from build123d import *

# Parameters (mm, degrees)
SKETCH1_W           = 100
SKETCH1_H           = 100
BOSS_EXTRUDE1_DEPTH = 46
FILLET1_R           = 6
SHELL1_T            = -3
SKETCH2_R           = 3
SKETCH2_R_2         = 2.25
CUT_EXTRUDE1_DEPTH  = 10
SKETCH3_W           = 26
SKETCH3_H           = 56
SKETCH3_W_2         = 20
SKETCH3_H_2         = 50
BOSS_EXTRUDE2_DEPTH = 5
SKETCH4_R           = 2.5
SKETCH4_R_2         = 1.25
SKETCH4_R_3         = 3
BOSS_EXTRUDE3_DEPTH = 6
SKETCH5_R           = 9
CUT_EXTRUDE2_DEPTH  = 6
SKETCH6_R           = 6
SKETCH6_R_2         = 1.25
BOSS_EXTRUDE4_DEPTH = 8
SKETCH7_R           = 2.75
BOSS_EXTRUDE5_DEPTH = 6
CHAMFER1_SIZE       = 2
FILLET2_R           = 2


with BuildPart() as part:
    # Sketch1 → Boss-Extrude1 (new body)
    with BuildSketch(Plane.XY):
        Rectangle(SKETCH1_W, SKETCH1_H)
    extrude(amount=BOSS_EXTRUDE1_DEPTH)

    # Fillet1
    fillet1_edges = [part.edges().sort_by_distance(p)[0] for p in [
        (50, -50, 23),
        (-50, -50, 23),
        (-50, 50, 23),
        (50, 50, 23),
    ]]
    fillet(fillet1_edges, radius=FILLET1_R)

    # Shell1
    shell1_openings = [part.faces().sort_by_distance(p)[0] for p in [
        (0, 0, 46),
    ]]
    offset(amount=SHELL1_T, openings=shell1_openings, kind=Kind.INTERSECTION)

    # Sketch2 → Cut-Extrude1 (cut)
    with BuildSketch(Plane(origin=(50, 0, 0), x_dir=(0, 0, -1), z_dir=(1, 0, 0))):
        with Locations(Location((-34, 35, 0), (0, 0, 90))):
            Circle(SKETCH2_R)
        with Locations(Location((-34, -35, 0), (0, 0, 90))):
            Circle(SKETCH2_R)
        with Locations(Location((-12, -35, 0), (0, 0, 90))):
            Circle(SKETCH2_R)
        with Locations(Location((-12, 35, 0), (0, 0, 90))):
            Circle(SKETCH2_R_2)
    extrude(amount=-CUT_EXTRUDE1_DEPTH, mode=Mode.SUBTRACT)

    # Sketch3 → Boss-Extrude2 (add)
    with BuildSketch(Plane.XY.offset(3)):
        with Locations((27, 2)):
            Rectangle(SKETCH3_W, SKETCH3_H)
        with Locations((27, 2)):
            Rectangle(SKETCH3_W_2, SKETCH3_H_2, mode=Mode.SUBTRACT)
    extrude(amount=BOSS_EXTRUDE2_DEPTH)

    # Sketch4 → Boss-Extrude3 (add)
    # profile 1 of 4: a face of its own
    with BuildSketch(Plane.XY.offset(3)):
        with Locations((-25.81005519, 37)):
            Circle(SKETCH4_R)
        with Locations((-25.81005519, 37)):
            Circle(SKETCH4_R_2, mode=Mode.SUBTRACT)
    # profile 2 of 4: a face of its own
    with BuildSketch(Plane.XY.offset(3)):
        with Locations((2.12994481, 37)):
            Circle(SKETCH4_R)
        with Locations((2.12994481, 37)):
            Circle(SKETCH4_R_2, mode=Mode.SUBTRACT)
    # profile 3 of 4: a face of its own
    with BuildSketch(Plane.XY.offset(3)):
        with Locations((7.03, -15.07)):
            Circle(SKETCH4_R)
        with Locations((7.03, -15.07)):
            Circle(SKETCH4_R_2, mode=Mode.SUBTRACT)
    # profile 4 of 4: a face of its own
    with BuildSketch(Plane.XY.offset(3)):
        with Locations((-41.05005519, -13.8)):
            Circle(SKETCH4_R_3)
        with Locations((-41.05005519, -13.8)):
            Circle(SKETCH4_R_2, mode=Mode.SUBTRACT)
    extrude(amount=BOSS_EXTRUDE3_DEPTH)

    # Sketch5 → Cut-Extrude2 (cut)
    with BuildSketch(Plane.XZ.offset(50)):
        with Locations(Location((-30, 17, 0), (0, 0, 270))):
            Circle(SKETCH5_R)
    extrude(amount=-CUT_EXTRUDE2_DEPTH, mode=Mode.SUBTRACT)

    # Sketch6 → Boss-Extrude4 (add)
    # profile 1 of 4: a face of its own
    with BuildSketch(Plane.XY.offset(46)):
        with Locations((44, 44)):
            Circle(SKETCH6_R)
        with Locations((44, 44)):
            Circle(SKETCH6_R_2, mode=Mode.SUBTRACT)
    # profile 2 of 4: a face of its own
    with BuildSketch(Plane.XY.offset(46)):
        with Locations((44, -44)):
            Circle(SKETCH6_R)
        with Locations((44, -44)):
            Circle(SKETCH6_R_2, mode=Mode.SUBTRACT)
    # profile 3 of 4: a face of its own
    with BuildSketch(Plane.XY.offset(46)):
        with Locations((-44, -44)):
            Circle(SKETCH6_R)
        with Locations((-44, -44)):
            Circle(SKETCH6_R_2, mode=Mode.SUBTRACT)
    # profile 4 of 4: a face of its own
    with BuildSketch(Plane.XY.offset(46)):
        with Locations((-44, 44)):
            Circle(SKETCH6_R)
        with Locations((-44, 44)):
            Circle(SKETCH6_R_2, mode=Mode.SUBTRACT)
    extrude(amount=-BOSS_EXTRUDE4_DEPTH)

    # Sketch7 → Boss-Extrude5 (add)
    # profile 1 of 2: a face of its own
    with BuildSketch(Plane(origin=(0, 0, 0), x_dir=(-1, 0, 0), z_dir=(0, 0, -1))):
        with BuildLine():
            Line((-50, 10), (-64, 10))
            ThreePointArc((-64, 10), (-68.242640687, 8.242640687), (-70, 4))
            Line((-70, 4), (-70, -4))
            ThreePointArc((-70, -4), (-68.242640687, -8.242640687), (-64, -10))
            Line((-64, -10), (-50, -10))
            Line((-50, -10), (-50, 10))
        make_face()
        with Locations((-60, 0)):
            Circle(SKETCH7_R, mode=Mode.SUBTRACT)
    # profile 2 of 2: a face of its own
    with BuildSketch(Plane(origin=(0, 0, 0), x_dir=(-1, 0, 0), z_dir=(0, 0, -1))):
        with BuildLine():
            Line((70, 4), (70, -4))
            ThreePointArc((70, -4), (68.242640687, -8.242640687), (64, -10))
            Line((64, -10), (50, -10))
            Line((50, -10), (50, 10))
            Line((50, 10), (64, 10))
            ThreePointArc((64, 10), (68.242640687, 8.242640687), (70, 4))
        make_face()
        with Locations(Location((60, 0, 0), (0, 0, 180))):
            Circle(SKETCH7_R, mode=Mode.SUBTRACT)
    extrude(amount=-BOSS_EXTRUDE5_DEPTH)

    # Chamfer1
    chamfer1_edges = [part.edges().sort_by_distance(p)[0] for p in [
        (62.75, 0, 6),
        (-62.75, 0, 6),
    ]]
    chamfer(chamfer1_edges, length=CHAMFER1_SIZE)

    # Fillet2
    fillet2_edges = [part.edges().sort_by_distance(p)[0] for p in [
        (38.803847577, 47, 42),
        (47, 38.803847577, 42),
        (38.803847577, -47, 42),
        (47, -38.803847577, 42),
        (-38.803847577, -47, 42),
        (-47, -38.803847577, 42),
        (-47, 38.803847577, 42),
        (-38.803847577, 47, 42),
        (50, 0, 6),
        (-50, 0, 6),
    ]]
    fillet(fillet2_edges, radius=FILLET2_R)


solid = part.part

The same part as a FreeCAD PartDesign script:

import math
import FreeCAD as App
import Part
import Sketcher

V = App.Vector
Q = App.Units.Quantity


def edges_at(feature, points):
    """Names of the edges that pass closest to the given points."""
    edges = feature.Shape.Edges
    near = lambda p: min(range(len(edges)), key=lambda i: edges[i].distToShape(Part.Vertex(*p))[0])
    return sorted({f"Edge{near(p) + 1}" for p in points})


def faces_at(feature, points):
    """Names of the faces that lie closest to the given points."""
    faces = feature.Shape.Faces
    near = lambda p: min(range(len(faces)), key=lambda i: faces[i].distToShape(Part.Vertex(*p))[0])
    return sorted({f"Face{near(p) + 1}" for p in points})


def add_polygon(sketch, points):
    """Adds a closed chain of lines whose ends are joined by coincident constraints."""
    first, n = sketch.GeometryCount, len(points)
    for a, b in zip(points, points[1:] + points[:1]):
        sketch.addGeometry(Part.LineSegment(App.Vector(*a, 0), App.Vector(*b, 0)), False)
    for i in range(n):
        sketch.addConstraint(Sketcher.Constraint("Coincident", first + i, 2, first + (i + 1) % n, 1))

doc = App.newDocument("Part")
body = doc.addObject("PartDesign::Body", "Body")

# Sketch on XY plane
sketch1 = body.newObject("Sketcher::SketchObject", "Sketch")
sketch1.AttachmentSupport = (doc.getObject("XY_Plane"), [""])
sketch1.MapMode = "FlatFace"
add_polygon(sketch1, [(-50, 50), (-50, -50), (50, -50), (50, 50)])  # lines 0-3
sketch1.addConstraint([
    Sketcher.Constraint("Vertical", 0),
    Sketcher.Constraint("Horizontal", 1),
    Sketcher.Constraint("Vertical", 2),
    Sketcher.Constraint("Horizontal", 3),
    Sketcher.Constraint("Symmetric", 0, 2, 2, 2, -1, 1),
    Sketcher.Constraint("Equal", 3, 0),
    Sketcher.Constraint("DistanceX", 1, 1, 1, 2, Q("100 mm")),
])
pad1 = body.newObject("PartDesign::Pad", "Pad")
pad1.Profile = sketch1
pad1.Length = 46
doc.recompute()

fillet = body.newObject("PartDesign::Fillet", "Fillet")
fillet.Base = (pad1, edges_at(pad1, [
    (50, -50, 23),
    (-50, -50, 23),
    (-50, 50, 23),
    (50, 50, 23),
]))
fillet.Radius = 6
doc.recompute()

thickness = body.newObject("PartDesign::Thickness", "Thickness")
thickness.Base = (fillet, faces_at(fillet, [(0, 0, 46)]))
thickness.Value = 3
thickness.Reversed = True
thickness.Join = "Intersection"

# Sketch on YZ plane
sketch2 = body.newObject("Sketcher::SketchObject", "Sketch001")
sketch2.AttachmentSupport = (doc.getObject("YZ_Plane"), [""])
sketch2.MapMode = "FlatFace"
sketch2.AttachmentOffset = App.Placement(V(0, 0, 50), App.Rotation())
sketch2.addGeometry([
    Part.Circle(V(35, 34, 0), V(0, 0, 1), 3),
    Part.Circle(V(-35, 34, 0), V(0, 0, 1), 3),
    Part.Circle(V(-35, 12, 0), V(0, 0, 1), 3),
    Part.Circle(V(35, 12, 0), V(0, 0, 1), 2.25),
], False)
sketch2.addConstraint([
    Sketcher.Constraint("Equal", 0, 1),
    Sketcher.Constraint("Equal", 1, 2),
    Sketcher.Constraint("Symmetric", 0, 3, 1, 3, -2),
    Sketcher.Constraint("Symmetric", 2, 3, 3, 3, -2),
    Sketcher.Constraint("Vertical", 1, 3, 2, 3),
    Sketcher.Constraint("Diameter", 0, Q("6 mm")),
    Sketcher.Constraint("Diameter", 3, Q("4.5 mm")),
    Sketcher.Constraint("DistanceX", -1, 1, 0, 3, Q("35 mm")),
    Sketcher.Constraint("DistanceY", -1, 1, 0, 3, Q("34 mm")),
    Sketcher.Constraint("DistanceY", -1, 1, 2, 3, Q("12 mm")),
])
pocket1 = body.newObject("PartDesign::Pocket", "Pocket")
pocket1.Profile = sketch2
pocket1.Length = 10

# Sketch on XY plane
sketch3 = body.newObject("Sketcher::SketchObject", "Sketch002")
sketch3.AttachmentSupport = (doc.getObject("XY_Plane"), [""])
sketch3.MapMode = "FlatFace"
sketch3.AttachmentOffset = App.Placement(V(0, 0, 3), App.Rotation())
add_polygon(sketch3, [(14, 30), (14, -26), (40, -26), (40, 30)])  # lines 0-3
add_polygon(sketch3, [(37, -23), (17, -23), (17, 27), (37, 27)])  # lines 4-7
sketch3.addConstraint([
    Sketcher.Constraint("Vertical", 0),
    Sketcher.Constraint("Horizontal", 1),
    Sketcher.Constraint("Vertical", 2),
    Sketcher.Constraint("Horizontal", 3),
    Sketcher.Constraint("Horizontal", 4),
    Sketcher.Constraint("Vertical", 5),
    Sketcher.Constraint("Horizontal", 6),
    Sketcher.Constraint("Vertical", 7),
    Sketcher.Constraint("DistanceX", 1, 1, 1, 2, Q("26 mm")),
    Sketcher.Constraint("DistanceX", 4, 2, 4, 1, Q("20 mm")),
    Sketcher.Constraint("DistanceY", 0, 2, 0, 1, Q("56 mm")),
    Sketcher.Constraint("DistanceY", 5, 1, 5, 2, Q("50 mm")),
    Sketcher.Constraint("DistanceX", -1, 1, 0, 2, Q("14 mm")),
    Sketcher.Constraint("DistanceY", 0, 2, -1, 1, Q("26 mm")),
    Sketcher.Constraint("DistanceX", -1, 1, 4, 2, Q("17 mm")),
    Sketcher.Constraint("DistanceY", 4, 2, -1, 1, Q("23 mm")),
])
pad2 = body.newObject("PartDesign::Pad", "Pad001")
pad2.Profile = sketch3
pad2.Length = 5

# Sketch on XY plane
sketch4 = body.newObject("Sketcher::SketchObject", "Sketch003")
sketch4.AttachmentSupport = (doc.getObject("XY_Plane"), [""])
sketch4.MapMode = "FlatFace"
sketch4.AttachmentOffset = App.Placement(V(0, 0, 3), App.Rotation())
sketch4.addGeometry([
    Part.Circle(V(-25.810055, 37, 0), V(0, 0, 1), 2.5),  # 0
    Part.Circle(V(-25.810055, 37, 0), V(0, 0, 1), 1.25),  # 1
    Part.Circle(V(2.129945, 37, 0), V(0, 0, 1), 2.5),  # 2
    Part.Circle(V(2.129945, 37, 0), V(0, 0, 1), 1.25),  # 3
    Part.Circle(V(7.03, -15.07, 0), V(0, 0, 1), 2.5),  # 4
    Part.Circle(V(7.03, -15.07, 0), V(0, 0, 1), 1.25),  # 5
    Part.Circle(V(-41.050055, -13.8, 0), V(0, 0, 1), 3),  # 6
    Part.Circle(V(-41.050055, -13.8, 0), V(0, 0, 1), 1.25),  # 7
], False)
sketch4.addConstraint([
    Sketcher.Constraint("Coincident", 1, 3, 0, 3),
    Sketcher.Constraint("Coincident", 3, 3, 2, 3),
    Sketcher.Constraint("Coincident", 5, 3, 4, 3),
    Sketcher.Constraint("Coincident", 7, 3, 6, 3),
    Sketcher.Constraint("Equal", 0, 2),
    Sketcher.Constraint("Equal", 1, 3),
    Sketcher.Constraint("Equal", 2, 4),
    Sketcher.Constraint("Equal", 3, 5),
    Sketcher.Constraint("Equal", 5, 7),
    Sketcher.Constraint("Horizontal", 1, 3, 2, 3),
    Sketcher.Constraint("Diameter", 0, Q("5 mm")),
    Sketcher.Constraint("Diameter", 6, Q("6 mm")),
    Sketcher.Constraint("Diameter", 1, Q("2.5 mm")),
    Sketcher.Constraint("DistanceY", -1, 1, 0, 3, Q("37 mm")),
    Sketcher.Constraint("DistanceY", 6, 3, -1, 1, Q("13.8 mm")),
    Sketcher.Constraint("DistanceX", -1, 1, 4, 3, Q("7.03 mm")),
    Sketcher.Constraint("DistanceY", 4, 3, -1, 1, Q("15.07 mm")),
    Sketcher.Constraint("DistanceX", 0, 3, 2, 3, Q("27.94 mm")),
    Sketcher.Constraint("DistanceX", 6, 3, 0, 3, Q("15.24 mm")),
    Sketcher.Constraint("DistanceX", 0, 3, -1, 1, Q("25.810055 mm")),
])
pad3 = body.newObject("PartDesign::Pad", "Pad002")
pad3.Profile = sketch4
pad3.Length = 6

# Sketch on XZ plane
sketch5 = body.newObject("Sketcher::SketchObject", "Sketch004")
sketch5.AttachmentSupport = (doc.getObject("XZ_Plane"), [""])
sketch5.MapMode = "FlatFace"
sketch5.AttachmentOffset = App.Placement(V(0, 0, 50), App.Rotation())
sketch5.addGeometry(Part.Circle(V(-30, 17, 0), V(0, 0, 1), 9), False)
sketch5.addConstraint([
    Sketcher.Constraint("Diameter", 0, Q("18 mm")),
    Sketcher.Constraint("DistanceX", 0, 3, -1, 1, Q("30 mm")),
    Sketcher.Constraint("DistanceY", -1, 1, 0, 3, Q("17 mm")),
])
pocket2 = body.newObject("PartDesign::Pocket", "Pocket001")
pocket2.Profile = sketch5
pocket2.Length = 6

# Sketch on XY plane
sketch6 = body.newObject("Sketcher::SketchObject", "Sketch005")
sketch6.AttachmentSupport = (doc.getObject("XY_Plane"), [""])
sketch6.MapMode = "FlatFace"
sketch6.AttachmentOffset = App.Placement(V(0, 0, 46), App.Rotation())
sketch6.addGeometry([
    Part.Circle(V(44, 44, 0), V(0, 0, 1), 6),  # 0
    Part.Circle(V(44, 44, 0), V(0, 0, 1), 1.25),  # 1
    Part.Circle(V(44, -44, 0), V(0, 0, 1), 6),  # 2
    Part.Circle(V(44, -44, 0), V(0, 0, 1), 1.25),  # 3
    Part.Circle(V(-44, -44, 0), V(0, 0, 1), 6),  # 4
    Part.Circle(V(-44, -44, 0), V(0, 0, 1), 1.25),  # 5
    Part.Circle(V(-44, 44, 0), V(0, 0, 1), 6),  # 6
    Part.Circle(V(-44, 44, 0), V(0, 0, 1), 1.25),  # 7
], False)
sketch6.addConstraint([
    Sketcher.Constraint("Coincident", 1, 3, 0, 3),
    Sketcher.Constraint("Coincident", 3, 3, 2, 3),
    Sketcher.Constraint("Coincident", 5, 3, 4, 3),
    Sketcher.Constraint("Coincident", 7, 3, 6, 3),
    Sketcher.Constraint("Equal", 0, 2),
    Sketcher.Constraint("Equal", 1, 3),
    Sketcher.Constraint("Equal", 2, 4),
    Sketcher.Constraint("Equal", 3, 5),
    Sketcher.Constraint("Equal", 4, 6),
    Sketcher.Constraint("Equal", 5, 7),
    Sketcher.Constraint("Symmetric", 0, 3, 4, 3, -1, 1),
    Sketcher.Constraint("Symmetric", 2, 3, 6, 3, -1, 1),
    Sketcher.Constraint("Symmetric", 2, 3, 4, 3, -2),
    Sketcher.Constraint("Diameter", 0, Q("12 mm")),
    Sketcher.Constraint("Diameter", 1, Q("2.5 mm")),
    Sketcher.Constraint("DistanceX", -1, 1, 0, 3, Q("44 mm")),
    Sketcher.Constraint("DistanceY", -1, 1, 0, 3, Q("44 mm")),
])
pad4 = body.newObject("PartDesign::Pad", "Pad003")
pad4.Profile = sketch6
pad4.Length = 8
pad4.Reversed = True

# Sketch on XY plane
sketch7 = body.newObject("Sketcher::SketchObject", "Sketch006")
sketch7.AttachmentSupport = (doc.getObject("XY_Plane"), [""])
sketch7.MapMode = "FlatFace"
sketch7.addGeometry([
    Part.LineSegment(V(50, 10, 0), V(64, 10, 0)),  # 0
    Part.ArcOfCircle(Part.Circle(V(64, 4, 0), V(0, 0, 1), 6), math.radians(0), math.radians(90)),  # 1
    Part.LineSegment(V(70, 4, 0), V(70, -4, 0)),  # 2
    Part.ArcOfCircle(Part.Circle(V(64, -4, 0), V(0, 0, 1), 6), math.radians(-90), math.radians(0)),  # 3
    Part.LineSegment(V(64, -10, 0), V(50, -10, 0)),  # 4
    Part.LineSegment(V(50, -10, 0), V(50, 10, 0)),  # 5
    Part.Circle(V(60, 0, 0), V(0, 0, 1), 2.75),  # 6
    Part.LineSegment(V(-70, -4, 0), V(-70, 4, 0)),  # 7
    Part.ArcOfCircle(Part.Circle(V(-64, 4, 0), V(0, 0, 1), 6), math.radians(90), math.radians(180)),  # 8
    Part.LineSegment(V(-64, 10, 0), V(-50, 10, 0)),  # 9
    Part.LineSegment(V(-50, 10, 0), V(-50, -10, 0)),  # 10
    Part.LineSegment(V(-50, -10, 0), V(-64, -10, 0)),  # 11
    Part.ArcOfCircle(Part.Circle(V(-64, -4, 0), V(0, 0, 1), 6), math.radians(180), math.radians(270)),  # 12
    Part.Circle(V(-60, 0, 0), V(0, 0, 1), 2.75),  # 13
], False)
sketch7.addConstraint([
    Sketcher.Constraint("Tangent", 0, 2, 1, 2),
    Sketcher.Constraint("Tangent", 1, 1, 2, 1),
    Sketcher.Constraint("Tangent", 2, 2, 3, 2),
    Sketcher.Constraint("Tangent", 3, 1, 4, 1),
    Sketcher.Constraint("Coincident", 4, 2, 5, 1),
    Sketcher.Constraint("Coincident", 5, 2, 0, 1),
    Sketcher.Constraint("Tangent", 7, 2, 8, 2),
    Sketcher.Constraint("Tangent", 8, 1, 9, 1),
    Sketcher.Constraint("Coincident", 9, 2, 10, 1),
    Sketcher.Constraint("Coincident", 10, 2, 11, 1),
    Sketcher.Constraint("Tangent", 11, 2, 12, 2),
    Sketcher.Constraint("Tangent", 12, 1, 7, 1),
    Sketcher.Constraint("Horizontal", 0),
    Sketcher.Constraint("Vertical", 2),
    Sketcher.Constraint("Horizontal", 4),
    Sketcher.Constraint("Vertical", 5),
    Sketcher.Constraint("Vertical", 7),
    Sketcher.Constraint("Horizontal", 9),
    Sketcher.Constraint("Vertical", 10),
    Sketcher.Constraint("Horizontal", 11),
    Sketcher.Constraint("Equal", 1, 3),
    Sketcher.Constraint("Equal", 3, 8),
    Sketcher.Constraint("Equal", 8, 12),
    Sketcher.Constraint("Equal", 6, 13),
    Sketcher.Constraint("Symmetric", 3, 3, 8, 3, -1, 1),
    Sketcher.Constraint("Symmetric", 6, 3, 13, 3, -1, 1),
    Sketcher.Constraint("Symmetric", 5, 2, 10, 2, -1, 1),
    Sketcher.Constraint("PointOnObject", 6, 3, -1),
    Sketcher.Constraint("Horizontal", 1, 3, 8, 3),
    Sketcher.Constraint("Radius", 1, Q("6 mm")),
    Sketcher.Constraint("Diameter", 6, Q("5.5 mm")),
    Sketcher.Constraint("DistanceX", 0, 1, 0, 2, Q("14 mm")),
    Sketcher.Constraint("DistanceY", 2, 2, 2, 1, Q("8 mm")),
    Sketcher.Constraint("DistanceX", -1, 1, 1, 3, Q("64 mm")),
    Sketcher.Constraint("DistanceX", -1, 1, 6, 3, Q("60 mm")),
])
pad5 = body.newObject("PartDesign::Pad", "Pad004")
pad5.Profile = sketch7
pad5.Length = 6
doc.recompute()

chamfer = body.newObject("PartDesign::Chamfer", "Chamfer")
chamfer.Base = (pad5, edges_at(pad5, [(62.75, 0, 6), (-62.75, 0, 6)]))
chamfer.Size = 2
doc.recompute()

fillet2 = body.newObject("PartDesign::Fillet", "Fillet001")
fillet2.Base = (chamfer, edges_at(chamfer, [
    (38.804, 47, 42),
    (47, 38.804, 42),
    (38.804, -47, 42),
    (47, -38.804, 42),
    (-38.804, -47, 42),
    (-47, -38.804, 42),
    (-47, 38.804, 42),
    (-38.804, 47, 42),
    (50, 0, 6),
    (-50, 0, 6),
]))
fillet2.Radius = 2

doc.recompute()
